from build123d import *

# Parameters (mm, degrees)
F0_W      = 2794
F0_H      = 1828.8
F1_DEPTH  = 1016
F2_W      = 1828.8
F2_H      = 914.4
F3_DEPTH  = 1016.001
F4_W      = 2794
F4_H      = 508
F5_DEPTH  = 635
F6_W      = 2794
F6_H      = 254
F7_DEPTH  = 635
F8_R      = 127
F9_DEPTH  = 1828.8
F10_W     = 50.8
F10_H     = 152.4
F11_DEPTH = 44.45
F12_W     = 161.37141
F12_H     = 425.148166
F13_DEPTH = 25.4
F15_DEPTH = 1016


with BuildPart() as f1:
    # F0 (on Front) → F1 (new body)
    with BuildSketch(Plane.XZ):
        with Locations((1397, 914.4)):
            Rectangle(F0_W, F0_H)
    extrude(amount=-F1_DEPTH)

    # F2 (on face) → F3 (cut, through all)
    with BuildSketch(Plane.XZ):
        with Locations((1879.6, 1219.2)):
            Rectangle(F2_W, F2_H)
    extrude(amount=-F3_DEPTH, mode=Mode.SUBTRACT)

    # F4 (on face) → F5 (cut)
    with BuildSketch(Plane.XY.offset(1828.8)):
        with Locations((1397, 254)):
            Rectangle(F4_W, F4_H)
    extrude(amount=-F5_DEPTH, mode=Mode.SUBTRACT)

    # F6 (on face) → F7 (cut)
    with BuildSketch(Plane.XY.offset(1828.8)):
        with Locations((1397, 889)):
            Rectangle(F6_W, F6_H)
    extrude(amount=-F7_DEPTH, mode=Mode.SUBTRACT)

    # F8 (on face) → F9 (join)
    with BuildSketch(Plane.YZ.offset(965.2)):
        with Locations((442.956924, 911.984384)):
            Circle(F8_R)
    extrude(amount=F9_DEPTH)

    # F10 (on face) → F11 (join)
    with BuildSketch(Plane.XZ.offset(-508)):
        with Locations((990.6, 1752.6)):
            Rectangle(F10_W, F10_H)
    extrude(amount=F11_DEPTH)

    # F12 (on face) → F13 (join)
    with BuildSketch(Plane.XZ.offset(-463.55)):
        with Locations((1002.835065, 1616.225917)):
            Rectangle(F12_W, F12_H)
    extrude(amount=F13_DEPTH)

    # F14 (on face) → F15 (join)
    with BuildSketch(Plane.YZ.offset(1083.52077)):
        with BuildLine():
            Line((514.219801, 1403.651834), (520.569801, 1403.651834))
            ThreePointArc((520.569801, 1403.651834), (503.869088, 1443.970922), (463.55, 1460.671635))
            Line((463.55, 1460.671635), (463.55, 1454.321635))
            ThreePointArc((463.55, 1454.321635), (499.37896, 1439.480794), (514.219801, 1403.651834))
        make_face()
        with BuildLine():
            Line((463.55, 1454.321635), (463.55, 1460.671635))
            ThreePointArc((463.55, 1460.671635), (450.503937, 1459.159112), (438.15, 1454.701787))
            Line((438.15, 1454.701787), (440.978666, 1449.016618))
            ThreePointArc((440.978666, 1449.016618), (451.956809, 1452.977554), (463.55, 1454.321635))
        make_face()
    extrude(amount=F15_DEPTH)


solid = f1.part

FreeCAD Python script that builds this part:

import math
import FreeCAD as App
import Part
import Sketcher
from FreeCAD import Vector
Q = App.Units.Quantity


def add_polygon(sketch, points):
    """Adds a closed chain of lines whose ends are joined by coincident constraints."""
    first, n = sketch.GeometryCount, len(points)
    for a, b in zip(points, points[1:] + points[:1]):
        sketch.addGeometry(Part.LineSegment(App.Vector(*a, 0), App.Vector(*b, 0)), False)
    for i in range(n):
        sketch.addConstraint(Sketcher.Constraint("Coincident", first + i, 2, first + (i + 1) % n, 1))

doc = App.newDocument("Part")
body = doc.addObject("PartDesign::Body", "Body")

sketch1 = doc.addObject("Sketcher::SketchObject", "Sketch")
body.addObject(sketch1)
sketch1.AttachmentSupport = (doc.XZ_Plane, [""])
sketch1.MapMode = "FlatFace"
add_polygon(sketch1, [(0, 1828.8), (0, 0), (2794, 0), (2794, 1828.8)])
sketch1.addConstraint([
    Sketcher.Constraint("Vertical", 0),
    Sketcher.Constraint("Horizontal", 1),
    Sketcher.Constraint("Vertical", 2),
    Sketcher.Constraint("Horizontal", 3),
    Sketcher.Constraint("Coincident", 0, 2, -1, 1),
    Sketcher.Constraint("DistanceX", 1, 1, 1, 2, Q("110 in")),
    Sketcher.Constraint("DistanceY", 0, 2, 0, 1, Q("72 in")),
])
pad1 = doc.addObject("PartDesign::Pad", "Pad")
body.addObject(pad1)
pad1.Profile = sketch1
pad1.Length = Q("40 in")
pad1.Reversed = True

sketch2 = doc.addObject("Sketcher::SketchObject", "Sketch001")
body.addObject(sketch2)
sketch2.AttachmentSupport = (doc.XZ_Plane, [""])
sketch2.MapMode = "FlatFace"
add_polygon(sketch2, [(965.2, 1676.4), (965.2, 762), (2794, 762), (2794, 1676.4)])
sketch2.addConstraint([
    Sketcher.Constraint("Vertical", 0),
    Sketcher.Constraint("Horizontal", 1),
    Sketcher.Constraint("Vertical", 2),
    Sketcher.Constraint("Horizontal", 3),
    Sketcher.Constraint("DistanceX", 1, 1, 1, 2, Q("72 in")),
    Sketcher.Constraint("DistanceY", 0, 2, 0, 1, Q("36 in")),
    Sketcher.Constraint("DistanceX", -1, 1, 0, 2, Q("38 in")),
    Sketcher.Constraint("DistanceY", -1, 1, 0, 2, Q("30 in")),
])
pocket1 = doc.addObject("PartDesign::Pocket", "Pocket")
body.addObject(pocket1)
pocket1.Profile = sketch2
pocket1.Type = "ThroughAll"

sketch3 = doc.addObject("Sketcher::SketchObject", "Sketch002")
body.addObject(sketch3)
sketch3.AttachmentSupport = (doc.XY_Plane, [""])
sketch3.MapMode = "FlatFace"
sketch3.AttachmentOffset = App.Placement(Vector(0, 0, 72 * 25.4), App.Rotation())
add_polygon(sketch3, [(0, 508), (0, 0), (2794, 0), (2794, 508)])
sketch3.addConstraint([
    Sketcher.Constraint("Vertical", 0),
    Sketcher.Constraint("Horizontal", 1),
    Sketcher.Constraint("Vertical", 2),
    Sketcher.Constraint("Horizontal", 3),
    Sketcher.Constraint("Coincident", 0, 2, -1, 1),
    Sketcher.Constraint("DistanceX", 1, 1, 1, 2, Q("110 in")),
    Sketcher.Constraint("DistanceY", 0, 2, 0, 1, Q("20 in")),
])
pocket2 = doc.addObject("PartDesign::Pocket", "Pocket001")
body.addObject(pocket2)
pocket2.Profile = sketch3
pocket2.Length = Q("25 in")

sketch4 = doc.addObject("Sketcher::SketchObject", "Sketch003")
body.addObject(sketch4)
sketch4.AttachmentSupport = (doc.XY_Plane, [""])
sketch4.MapMode = "FlatFace"
sketch4.AttachmentOffset = App.Placement(Vector(0, 0, 72 * 25.4), App.Rotation())
add_polygon(sketch4, [(0, 1016), (0, 762), (2794, 762), (2794, 1016)])
sketch4.addConstraint([
    Sketcher.Constraint("Vertical", 0),
    Sketcher.Constraint("Horizontal", 1),
    Sketcher.Constraint("Vertical", 2),
    Sketcher.Constraint("Horizontal", 3),
    Sketcher.Constraint("PointOnObject", 0, 2, -2),
    Sketcher.Constraint("DistanceX", 1, 1, 1, 2, Q("110 in")),
    Sketcher.Constraint("DistanceY", 0, 2, 0, 1, Q("10 in")),
    Sketcher.Constraint("DistanceY", -1, 1, 0, 2, Q("30 in")),
])
pocket3 = doc.addObject("PartDesign::Pocket", "Pocket002")
body.addObject(pocket3)
pocket3.Profile = sketch4
pocket3.Length = Q("25 in")

sketch5 = doc.addObject("Sketcher::SketchObject", "Sketch004")
body.addObject(sketch5)
sketch5.AttachmentSupport = (doc.YZ_Plane, [""])
sketch5.MapMode = "FlatFace"
sketch5.AttachmentOffset = App.Placement(Vector(0, 0, 38 * 25.4), App.Rotation())
sketch5.addGeometry(Part.Circle(Vector(442.956924, 911.984384, 0), Vector(0, 0, 1), 127), False)
sketch5.addConstraint([
    Sketcher.Constraint("Diameter", 0, Q("10 in")),
    Sketcher.Constraint("DistanceX", -1, 1, 0, 3, 442.956924),
    Sketcher.Constraint("DistanceY", -1, 1, 0, 3, 911.984384),
])
pad2 = doc.addObject("PartDesign::Pad", "Pad001")
body.addObject(pad2)
pad2.Profile = sketch5
pad2.Length = Q("72 in")

sketch6 = doc.addObject("Sketcher::SketchObject", "Sketch005")
body.addObject(sketch6)
sketch6.AttachmentSupport = (doc.XZ_Plane, [""])
sketch6.MapMode = "FlatFace"
sketch6.AttachmentOffset = App.Placement(Vector(0, 0, -20 * 25.4), App.Rotation())
add_polygon(sketch6, [(965.2, 1828.8), (965.2, 1676.4), (1016, 1676.4), (1016, 1828.8)])
sketch6.addConstraint([
    Sketcher.Constraint("Vertical", 0),
    Sketcher.Constraint("Horizontal", 1),
    Sketcher.Constraint("Vertical", 2),
    Sketcher.Constraint("Horizontal", 3),
    Sketcher.Constraint("DistanceX", 1, 1, 1, 2, Q("2 in")),
    Sketcher.Constraint("DistanceY", 0, 2, 0, 1, Q("6 in")),
    Sketcher.Constraint("DistanceX", -1, 1, 0, 2, Q("38 in")),
    Sketcher.Constraint("DistanceY", -1, 1, 0, 2, Q("66 in")),
])
pad3 = doc.addObject("PartDesign::Pad", "Pad002")
body.addObject(pad3)
pad3.Profile = sketch6
pad3.Length = Q("1.75 in")

sketch7 = doc.addObject("Sketcher::SketchObject", "Sketch006")
body.addObject(sketch7)
sketch7.AttachmentSupport = (doc.XZ_Plane, [""])
sketch7.MapMode = "FlatFace"
sketch7.AttachmentOffset = App.Placement(Vector(0, 0, -18.25 * 25.4), App.Rotation())
add_polygon(sketch7, [(922.14936, 1828.8), (922.14936, 1403.651834), (1083.52077, 1403.651834), (1083.52077, 1828.8)])
sketch7.addConstraint([
    Sketcher.Constraint("Vertical", 0),
    Sketcher.Constraint("Horizontal", 1),
    Sketcher.Constraint("Vertical", 2),
    Sketcher.Constraint("Horizontal", 3),
    Sketcher.Constraint("DistanceY", -1, 1, 2, 2, Q("72 in")),
    Sketcher.Constraint("DistanceX", 1, 1, 1, 2, 161.37141),
    Sketcher.Constraint("DistanceY", 0, 2, 0, 1, 425.148166),
    Sketcher.Constraint("DistanceX", -1, 1, 0, 2, 922.14936),
])
pad4 = doc.addObject("PartDesign::Pad", "Pad003")
body.addObject(pad4)
pad4.Profile = sketch7
pad4.Length = Q("1 in")

sketch8 = doc.addObject("Sketcher::SketchObject", "Sketch007")
body.addObject(sketch8)
sketch8.AttachmentSupport = (doc.YZ_Plane, [""])
sketch8.MapMode = "FlatFace"
sketch8.AttachmentOffset = App.Placement(Vector(0, 0, 1083.52077), App.Rotation())
sketch8.addGeometry([
    Part.LineSegment(Vector(514.219801, 1403.651834, 0), Vector(520.569801, 1403.651834, 0)),
    Part.ArcOfCircle(Part.Circle(Vector(463.55, 1403.651834, 0), Vector(0, 0, 1), 57.019801), math.radians(0), math.radians(90)),
    Part.ArcOfCircle(Part.Circle(Vector(463.550003, 1403.651823, 0), Vector(0, 0, 1), 57.019812), math.radians(90.000003), math.radians(116.452725)),
    Part.LineSegment(Vector(438.15, 1454.701787, 0), Vector(440.978666, 1449.016618, 0)),
    Part.ArcOfCircle(Part.Circle(Vector(463.55, 1403.651831, 0), Vector(0, 0, 1), 50.669804), math.radians(90.000001), math.radians(116.452727)),
    Part.ArcOfCircle(Part.Circle(Vector(463.55, 1403.651834, 0), Vector(0, 0, 1), 50.669801), math.radians(0), math.radians(90)),
], False)
sketch8.addConstraint([
    Sketcher.Constraint("Coincident", 0, 2, 1, 1),
    Sketcher.Constraint("Tangent", 1, 2, 2, 1),
    Sketcher.Constraint("Coincident", 2, 2, 3, 1),
    Sketcher.Constraint("Coincident", 3, 2, 4, 2),
    Sketcher.Constraint("Tangent", 4, 1, 5, 2),
    Sketcher.Constraint("Coincident", 5, 1, 0, 1),
    Sketcher.Constraint("Horizontal", 0),
    Sketcher.Constraint("Coincident", 4, 3, 1, 3),
    Sketcher.Constraint("Horizontal", 5, 3, 0, 2),
    Sketcher.Constraint("Vertical", 5, 3, 1, 2),
    Sketcher.Constraint("Vertical", 1, 2, 4, 1),
    Sketcher.Constraint("DistanceX", 2, 2, 1, 2, Q("1 in")),
    Sketcher.Constraint("DistanceX", 0, 1, 0, 2, Q("0.25 in")),
    Sketcher.Constraint("Distance", 3, Q("0.25 in")),
    Sketcher.Constraint("DistanceX", -1, 1, 1, 3, Q("18.25 in")),
    Sketcher.Constraint("Radius", 1, 57.019801),
    Sketcher.Constraint("DistanceY", 4, 1, 1, 2, Q("0.25 in")),
    Sketcher.Constraint("DistanceY", -1, 1, 4, 3, 1403.651831),
    Sketcher.Constraint("DistanceY", -1, 1, 3, 2, 1449.016618),
])
pad5 = doc.addObject("PartDesign::Pad", "Pad004")
body.addObject(pad5)
pad5.Profile = sketch8
pad5.Length = Q("40 in")

doc.recompute()
